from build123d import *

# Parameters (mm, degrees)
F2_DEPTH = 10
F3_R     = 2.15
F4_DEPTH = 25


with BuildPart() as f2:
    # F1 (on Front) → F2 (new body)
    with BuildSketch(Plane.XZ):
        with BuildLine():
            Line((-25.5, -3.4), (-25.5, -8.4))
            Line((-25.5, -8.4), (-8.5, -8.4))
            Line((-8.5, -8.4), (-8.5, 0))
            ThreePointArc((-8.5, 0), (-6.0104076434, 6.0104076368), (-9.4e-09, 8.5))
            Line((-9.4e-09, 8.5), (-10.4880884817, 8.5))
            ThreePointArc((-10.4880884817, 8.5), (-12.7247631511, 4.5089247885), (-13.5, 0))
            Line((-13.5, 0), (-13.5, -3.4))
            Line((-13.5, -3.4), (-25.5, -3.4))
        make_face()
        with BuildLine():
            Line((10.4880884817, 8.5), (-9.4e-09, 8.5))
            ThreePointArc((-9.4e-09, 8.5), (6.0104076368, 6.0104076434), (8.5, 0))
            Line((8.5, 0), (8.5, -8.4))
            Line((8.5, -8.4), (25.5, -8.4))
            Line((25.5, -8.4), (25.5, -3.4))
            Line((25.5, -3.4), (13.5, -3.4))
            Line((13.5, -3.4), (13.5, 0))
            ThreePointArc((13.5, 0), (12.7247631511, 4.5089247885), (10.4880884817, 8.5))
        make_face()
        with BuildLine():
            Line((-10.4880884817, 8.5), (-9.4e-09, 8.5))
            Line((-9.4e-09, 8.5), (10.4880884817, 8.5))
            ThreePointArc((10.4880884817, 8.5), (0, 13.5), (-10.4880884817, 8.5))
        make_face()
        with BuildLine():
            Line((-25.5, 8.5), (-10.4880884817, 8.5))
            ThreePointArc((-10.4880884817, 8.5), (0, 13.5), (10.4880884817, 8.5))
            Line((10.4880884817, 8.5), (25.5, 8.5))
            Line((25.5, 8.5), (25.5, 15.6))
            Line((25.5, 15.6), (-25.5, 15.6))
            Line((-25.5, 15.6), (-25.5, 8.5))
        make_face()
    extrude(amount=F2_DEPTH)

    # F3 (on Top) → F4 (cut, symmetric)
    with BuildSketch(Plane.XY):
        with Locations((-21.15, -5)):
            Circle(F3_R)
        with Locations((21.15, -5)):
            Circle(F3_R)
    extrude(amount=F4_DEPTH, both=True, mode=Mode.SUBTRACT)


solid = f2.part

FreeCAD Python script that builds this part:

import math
import FreeCAD as App
import Part
import Sketcher

V = App.Vector

doc = App.newDocument("Part")
params = doc.addObject("Spreadsheet::Sheet", "Params")
for row, (alias, value) in enumerate([
    ("sketch1_radius", "8.5 mm"),
    ("sketch1_radius2", "13.5 mm"),
    ("sketch1_width", "17 mm"),
    ("sketch1_height", "5 mm"),
    ("sketch1_height2", "8.4 mm"),
    ("pad1_length", "10 mm"),
    ("sketch2_diameter", "4.3 mm"),
    ("pocket1_length", "50 mm"),
], start=1):
    params.set(f"A{row}", alias)
    params.set(f"B{row}", "=" + value)
    params.setAlias(f"B{row}", alias)

body = doc.addObject("PartDesign::Body", "Body")

# Sketch on XZ plane
sketch1 = body.newObject("Sketcher::SketchObject", "Sketch")
sketch1.AttachmentSupport = (doc.getObject("XZ_Plane"), [""])
sketch1.MapMode = "FlatFace"
sketch1.addGeometry(Part.LineSegment(V(-25.5, -3.4, 0), V(-25.5, -8.4, 0)), False)
sketch1.addGeometry(Part.LineSegment(V(-25.5, -8.4, 0), V(-8.5, -8.4, 0)), False)
sketch1.addGeometry(Part.LineSegment(V(-8.5, -8.4, 0), V(-8.5, 0, 0)), False)
sketch1.addGeometry(Part.ArcOfCircle(Part.Circle(V(0, 0, 0), V(0, 0, 1), 8.5), math.radians(90), math.radians(180)), False)
sketch1.addGeometry(Part.ArcOfCircle(Part.Circle(V(0, 0, 0), V(0, 0, 1), 8.5), math.radians(0), math.radians(90)), False)
sketch1.addGeometry(Part.LineSegment(V(8.5, 0, 0), V(8.5, -8.4, 0)), False)
sketch1.addGeometry(Part.LineSegment(V(8.5, -8.4, 0), V(25.5, -8.4, 0)), False)
sketch1.addGeometry(Part.LineSegment(V(25.5, -8.4, 0), V(25.5, -3.4, 0)), False)
sketch1.addGeometry(Part.LineSegment(V(25.5, -3.4, 0), V(13.5, -3.4, 0)), False)
sketch1.addGeometry(Part.LineSegment(V(13.5, -3.4, 0), V(13.5, 0, 0)), False)
sketch1.addGeometry(Part.ArcOfCircle(Part.Circle(V(0, 0, 0), V(0, 0, 1), 13.5), math.radians(0), math.radians(39)), False)
sketch1.addGeometry(Part.LineSegment(V(10.5, 8.5, 0), V(25.5, 8.5, 0)), False)
sketch1.addGeometry(Part.LineSegment(V(25.5, 8.5, 0), V(25.5, 15.6, 0)), False)
sketch1.addGeometry(Part.LineSegment(V(25.5, 15.6, 0), V(-25.5, 15.6, 0)), False)
sketch1.addGeometry(Part.LineSegment(V(-25.5, 15.6, 0), V(-25.5, 8.5, 0)), False)
sketch1.addGeometry(Part.LineSegment(V(-25.5, 8.5, 0), V(-10.5, 8.5, 0)), False)
sketch1.addGeometry(Part.ArcOfCircle(Part.Circle(V(0, 0, 0), V(0, 0, 1), 13.5), math.radians(141), math.radians(180)), False)
sketch1.addGeometry(Part.LineSegment(V(-13.5, 0, 0), V(-13.5, -3.4, 0)), False)
sketch1.addGeometry(Part.LineSegment(V(-13.5, -3.4, 0), V(-25.5, -3.4, 0)), False)
sketch1.addConstraint(Sketcher.Constraint("Coincident", 0, 2, 1, 1))
sketch1.addConstraint(Sketcher.Constraint("Coincident", 1, 2, 2, 1))
sketch1.addConstraint(Sketcher.Constraint("Tangent", 2, 2, 3, 2))
sketch1.addConstraint(Sketcher.Constraint("Tangent", 3, 1, 4, 2))
sketch1.addConstraint(Sketcher.Constraint("Tangent", 4, 1, 5, 1))
sketch1.addConstraint(Sketcher.Constraint("Coincident", 5, 2, 6, 1))
sketch1.addConstraint(Sketcher.Constraint("Coincident", 6, 2, 7, 1))
sketch1.addConstraint(Sketcher.Constraint("Coincident", 7, 2, 8, 1))
sketch1.addConstraint(Sketcher.Constraint("Coincident", 8, 2, 9, 1))
sketch1.addConstraint(Sketcher.Constraint("Tangent", 9, 2, 10, 1))
sketch1.addConstraint(Sketcher.Constraint("Coincident", 10, 2, 11, 1))
sketch1.addConstraint(Sketcher.Constraint("Coincident", 11, 2, 12, 1))
sketch1.addConstraint(Sketcher.Constraint("Coincident", 12, 2, 13, 1))
sketch1.addConstraint(Sketcher.Constraint("Coincident", 13, 2, 14, 1))
sketch1.addConstraint(Sketcher.Constraint("Coincident", 14, 2, 15, 1))
sketch1.addConstraint(Sketcher.Constraint("Coincident", 15, 2, 16, 1))
sketch1.addConstraint(Sketcher.Constraint("Tangent", 16, 2, 17, 1))
sketch1.addConstraint(Sketcher.Constraint("Coincident", 17, 2, 18, 1))
sketch1.addConstraint(Sketcher.Constraint("Coincident", 18, 2, 0, 1))
sketch1.addConstraint(Sketcher.Constraint("Vertical", 0))
sketch1.addConstraint(Sketcher.Constraint("Horizontal", 1))
sketch1.addConstraint(Sketcher.Constraint("Vertical", 2))
sketch1.addConstraint(Sketcher.Constraint("Vertical", 5))
sketch1.addConstraint(Sketcher.Constraint("Horizontal", 6))
sketch1.addConstraint(Sketcher.Constraint("Vertical", 7))
sketch1.addConstraint(Sketcher.Constraint("Horizontal", 8))
sketch1.addConstraint(Sketcher.Constraint("Vertical", 9))
sketch1.addConstraint(Sketcher.Constraint("Horizontal", 11))
sketch1.addConstraint(Sketcher.Constraint("Vertical", 12))
sketch1.addConstraint(Sketcher.Constraint("Horizontal", 13))
sketch1.addConstraint(Sketcher.Constraint("Vertical", 14))
sketch1.addConstraint(Sketcher.Constraint("Horizontal", 15))
sketch1.addConstraint(Sketcher.Constraint("Vertical", 17))
sketch1.addConstraint(Sketcher.Constraint("Horizontal", 18))
sketch1.addConstraint(Sketcher.Constraint("Coincident", 3, 3, -1, 1))
sketch1.addConstraint(Sketcher.Constraint("Coincident", 10, 3, -1, 1))
sketch1.addConstraint(Sketcher.Constraint("Coincident", 16, 3, -1, 1))
sketch1.addConstraint(Sketcher.Constraint("Equal", 3, 4))
sketch1.addConstraint(Sketcher.Constraint("Equal", 10, 16))
sketch1.addConstraint(Sketcher.Constraint("Symmetric", 0, 2, 6, 2, -2))
sketch1.addConstraint(Sketcher.Constraint("Symmetric", 11, 2, 14, 2, -2))
sketch1.addConstraint(Sketcher.Constraint("PointOnObject", 3, 1, -2))
sketch1.addConstraint(Sketcher.Constraint("Horizontal", 3, 1, 10, 2))
sketch1.addConstraint(Sketcher.Constraint("Horizontal", 8, 2, 17, 2))
sketch1.addConstraint(Sketcher.Constraint("Vertical", 7, 2, 11, 2))
sketch1.addConstraint(Sketcher.Constraint("Radius", 3, 8.5))
sketch1.addConstraint(Sketcher.Constraint("Radius", 10, 13.5))
sketch1.addConstraint(Sketcher.Constraint("DistanceX", 1, 1, 1, 2, 17.0))
sketch1.addConstraint(Sketcher.Constraint("DistanceY", 0, 2, 0, 1, 5.0))
sketch1.addConstraint(Sketcher.Constraint("DistanceY", 2, 1, 2, 2, 8.4))
sketch1.addConstraint(Sketcher.Constraint("DistanceY", 12, 1, 12, 2, 7.1))
sketch1.setExpression("Constraints[45]", "Params.sketch1_radius")
sketch1.setExpression("Constraints[46]", "Params.sketch1_radius2")
sketch1.setExpression("Constraints[47]", "Params.sketch1_width")
sketch1.setExpression("Constraints[48]", "Params.sketch1_height")
sketch1.setExpression("Constraints[49]", "Params.sketch1_height2")
pad1 = body.newObject("PartDesign::Pad", "Pad")
pad1.Profile = sketch1
pad1.setExpression("Length", "Params.pad1_length")

# Sketch on XY plane
sketch2 = body.newObject("Sketcher::SketchObject", "Sketch001")
sketch2.AttachmentSupport = (doc.getObject("XY_Plane"), [""])
sketch2.MapMode = "FlatFace"
sketch2.addGeometry(Part.Circle(V(-21.1, -5, 0), V(0, 0, 1), 2.1), False)
sketch2.addGeometry(Part.Circle(V(21.1, -5, 0), V(0, 0, 1), 2.1), False)
sketch2.addConstraint(Sketcher.Constraint("Equal", 0, 1))
sketch2.addConstraint(Sketcher.Constraint("Symmetric", 0, 3, 1, 3, -2))
sketch2.addConstraint(Sketcher.Constraint("Diameter", 0, 4.3))
sketch2.addConstraint(Sketcher.Constraint("DistanceY", 0, 3, -1, 1, 5.0))
sketch2.addConstraint(Sketcher.Constraint("DistanceX", 0, 3, 1, 3, 42.3))
sketch2.setExpression("Constraints[2]", "Params.sketch2_diameter")
pocket1 = body.newObject("PartDesign::Pocket", "Pocket")
pocket1.Profile = sketch2
pocket1.setExpression("Length", "Params.pocket1_length")
pocket1.Midplane = True

doc.recompute()
